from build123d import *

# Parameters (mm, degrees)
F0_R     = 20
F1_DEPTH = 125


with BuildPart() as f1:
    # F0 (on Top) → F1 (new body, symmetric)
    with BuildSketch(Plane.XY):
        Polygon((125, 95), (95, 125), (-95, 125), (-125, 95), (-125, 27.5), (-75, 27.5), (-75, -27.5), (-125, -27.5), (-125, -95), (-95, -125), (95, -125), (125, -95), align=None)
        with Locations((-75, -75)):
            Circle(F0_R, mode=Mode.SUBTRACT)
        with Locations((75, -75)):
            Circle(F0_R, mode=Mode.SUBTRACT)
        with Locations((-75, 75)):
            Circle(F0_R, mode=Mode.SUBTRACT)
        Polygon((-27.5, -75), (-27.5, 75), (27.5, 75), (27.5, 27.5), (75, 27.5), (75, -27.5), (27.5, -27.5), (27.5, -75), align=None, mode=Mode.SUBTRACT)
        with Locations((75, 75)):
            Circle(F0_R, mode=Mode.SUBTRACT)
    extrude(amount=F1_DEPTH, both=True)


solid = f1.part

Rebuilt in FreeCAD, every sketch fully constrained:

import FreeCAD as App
import Part
import Sketcher
Q = App.Units.Quantity

doc = App.newDocument("Part")
body = doc.addObject("PartDesign::Body", "Body")

# Sketch on XY plane
sketch1 = body.newObject("Sketcher::SketchObject", "Sketch")
sketch1.AttachmentSupport = (doc.getObject("XY_Plane"), [""])
sketch1.MapMode = "FlatFace"
sketch1.addGeometry(Part.LineSegment(App.Vector(125, 95, 0), App.Vector(95, 125, 0)), False)
sketch1.addGeometry(Part.LineSegment(App.Vector(95, 125, 0), App.Vector(-95, 125, 0)), False)
sketch1.addGeometry(Part.LineSegment(App.Vector(-95, 125, 0), App.Vector(-125, 95, 0)), False)
sketch1.addGeometry(Part.LineSegment(App.Vector(-125, 95, 0), App.Vector(-125, 27.5, 0)), False)
sketch1.addGeometry(Part.LineSegment(App.Vector(-125, 27.5, 0), App.Vector(-75, 27.5, 0)), False)
sketch1.addGeometry(Part.LineSegment(App.Vector(-75, 27.5, 0), App.Vector(-75, -27.5, 0)), False)
sketch1.addGeometry(Part.LineSegment(App.Vector(-75, -27.5, 0), App.Vector(-125, -27.5, 0)), False)
sketch1.addGeometry(Part.LineSegment(App.Vector(-125, -27.5, 0), App.Vector(-125, -95, 0)), False)
sketch1.addGeometry(Part.LineSegment(App.Vector(-125, -95, 0), App.Vector(-95, -125, 0)), False)
sketch1.addGeometry(Part.LineSegment(App.Vector(-95, -125, 0), App.Vector(95, -125, 0)), False)
sketch1.addGeometry(Part.LineSegment(App.Vector(95, -125, 0), App.Vector(125, -95, 0)), False)
sketch1.addGeometry(Part.LineSegment(App.Vector(125, -95, 0), App.Vector(125, 95, 0)), False)
sketch1.addGeometry(Part.Circle(App.Vector(-75, -75, 0), App.Vector(0, 0, 1), 20), False)
sketch1.addGeometry(Part.Circle(App.Vector(75, -75, 0), App.Vector(0, 0, 1), 20), False)
sketch1.addGeometry(Part.Circle(App.Vector(-75, 75, 0), App.Vector(0, 0, 1), 20), False)
sketch1.addGeometry(Part.LineSegment(App.Vector(27.5, -75, 0), App.Vector(-27.5, -75, 0)), False)
sketch1.addGeometry(Part.LineSegment(App.Vector(-27.5, -75, 0), App.Vector(-27.5, 75, 0)), False)
sketch1.addGeometry(Part.LineSegment(App.Vector(-27.5, 75, 0), App.Vector(27.5, 75, 0)), False)
sketch1.addGeometry(Part.LineSegment(App.Vector(27.5, 75, 0), App.Vector(27.5, 27.5, 0)), False)
sketch1.addGeometry(Part.LineSegment(App.Vector(27.5, 27.5, 0), App.Vector(75, 27.5, 0)), False)
sketch1.addGeometry(Part.LineSegment(App.Vector(75, 27.5, 0), App.Vector(75, -27.5, 0)), False)
sketch1.addGeometry(Part.LineSegment(App.Vector(75, -27.5, 0), App.Vector(27.5, -27.5, 0)), False)
sketch1.addGeometry(Part.LineSegment(App.Vector(27.5, -27.5, 0), App.Vector(27.5, -75, 0)), False)
sketch1.addGeometry(Part.Circle(App.Vector(75, 75, 0), App.Vector(0, 0, 1), 20), False)
sketch1.addConstraint(Sketcher.Constraint("Coincident", 0, 2, 1, 1))
sketch1.addConstraint(Sketcher.Constraint("Coincident", 1, 2, 2, 1))
sketch1.addConstraint(Sketcher.Constraint("Coincident", 2, 2, 3, 1))
sketch1.addConstraint(Sketcher.Constraint("Coincident", 3, 2, 4, 1))
sketch1.addConstraint(Sketcher.Constraint("Coincident", 4, 2, 5, 1))
sketch1.addConstraint(Sketcher.Constraint("Coincident", 5, 2, 6, 1))
sketch1.addConstraint(Sketcher.Constraint("Coincident", 6, 2, 7, 1))
sketch1.addConstraint(Sketcher.Constraint("Coincident", 7, 2, 8, 1))
sketch1.addConstraint(Sketcher.Constraint("Coincident", 8, 2, 9, 1))
sketch1.addConstraint(Sketcher.Constraint("Coincident", 9, 2, 10, 1))
sketch1.addConstraint(Sketcher.Constraint("Coincident", 10, 2, 11, 1))
sketch1.addConstraint(Sketcher.Constraint("Coincident", 11, 2, 0, 1))
sketch1.addConstraint(Sketcher.Constraint("Coincident", 15, 2, 16, 1))
sketch1.addConstraint(Sketcher.Constraint("Coincident", 16, 2, 17, 1))
sketch1.addConstraint(Sketcher.Constraint("Coincident", 17, 2, 18, 1))
sketch1.addConstraint(Sketcher.Constraint("Coincident", 18, 2, 19, 1))
sketch1.addConstraint(Sketcher.Constraint("Coincident", 19, 2, 20, 1))
sketch1.addConstraint(Sketcher.Constraint("Coincident", 20, 2, 21, 1))
sketch1.addConstraint(Sketcher.Constraint("Coincident", 21, 2, 22, 1))
sketch1.addConstraint(Sketcher.Constraint("Coincident", 22, 2, 15, 1))
sketch1.addConstraint(Sketcher.Constraint("Horizontal", 1))
sketch1.addConstraint(Sketcher.Constraint("Vertical", 3))
sketch1.addConstraint(Sketcher.Constraint("Horizontal", 4))
sketch1.addConstraint(Sketcher.Constraint("Vertical", 5))
sketch1.addConstraint(Sketcher.Constraint("Horizontal", 6))
sketch1.addConstraint(Sketcher.Constraint("Vertical", 7))
sketch1.addConstraint(Sketcher.Constraint("Horizontal", 9))
sketch1.addConstraint(Sketcher.Constraint("Vertical", 11))
sketch1.addConstraint(Sketcher.Constraint("Horizontal", 15))
sketch1.addConstraint(Sketcher.Constraint("Vertical", 16))
sketch1.addConstraint(Sketcher.Constraint("Horizontal", 17))
sketch1.addConstraint(Sketcher.Constraint("Vertical", 18))
sketch1.addConstraint(Sketcher.Constraint("Horizontal", 19))
sketch1.addConstraint(Sketcher.Constraint("Vertical", 20))
sketch1.addConstraint(Sketcher.Constraint("Horizontal", 21))
sketch1.addConstraint(Sketcher.Constraint("Vertical", 22))
sketch1.addConstraint(Sketcher.Constraint("Equal", 12, 13))
sketch1.addConstraint(Sketcher.Constraint("Equal", 13, 14))
sketch1.addConstraint(Sketcher.Constraint("Equal", 14, 23))
sketch1.addConstraint(Sketcher.Constraint("Symmetric", 13, 3, 14, 3, -1, 1))
sketch1.addConstraint(Sketcher.Constraint("Symmetric", 12, 3, 23, 3, -1, 1))
sketch1.addConstraint(Sketcher.Constraint("Symmetric", 0, 2, 8, 2, -1, 1))
sketch1.addConstraint(Sketcher.Constraint("Symmetric", 2, 2, 10, 2, -1, 1))
sketch1.addConstraint(Sketcher.Constraint("Symmetric", 7, 2, 11, 2, -1, 1))
sketch1.addConstraint(Sketcher.Constraint("Symmetric", 15, 2, 17, 2, -1, 1))
sketch1.addConstraint(Sketcher.Constraint("Symmetric", 5, 2, 19, 2, -1, 1))
sketch1.addConstraint(Sketcher.Constraint("Symmetric", 12, 3, 13, 3, -2))
sketch1.addConstraint(Sketcher.Constraint("Symmetric", 18, 2, 21, 2, -1))
sketch1.addConstraint(Sketcher.Constraint("Perpendicular", 0, 2))
sketch1.addConstraint(Sketcher.Constraint("Perpendicular", 8, 10))
sketch1.addConstraint(Sketcher.Constraint("Horizontal", 7, 2, 10, 2))
sketch1.addConstraint(Sketcher.Constraint("Horizontal", 13, 3, 15, 2))
sketch1.addConstraint(Sketcher.Constraint("Horizontal", 4, 2, 18, 2))
sketch1.addConstraint(Sketcher.Constraint("Vertical", 14, 3, 4, 2))
sketch1.addConstraint(Sketcher.Constraint("Vertical", 1, 2, 8, 2))
sketch1.addConstraint(Sketcher.Constraint("Equal", 17, 5))
sketch1.addConstraint(Sketcher.Constraint("Equal", 9, 11))
sketch1.addConstraint(Sketcher.Constraint("Equal", 21, 18))
sketch1.addConstraint(Sketcher.Constraint("Diameter", 12, Q("40 mm")))
sketch1.addConstraint(Sketcher.Constraint("DistanceX", 1, 2, 1, 1, Q("190 mm")))
sketch1.addConstraint(Sketcher.Constraint("DistanceX", 4, 1, 4, 2, Q("50 mm")))
sketch1.addConstraint(Sketcher.Constraint("DistanceX", 15, 2, 15, 1, Q("55 mm")))
sketch1.addConstraint(Sketcher.Constraint("DistanceY", 16, 1, 16, 2, Q("150 mm")))
pad1 = body.newObject("PartDesign::Pad", "Pad")
pad1.Profile = sketch1
pad1.Length = 250
pad1.Midplane = True

doc.recompute()
